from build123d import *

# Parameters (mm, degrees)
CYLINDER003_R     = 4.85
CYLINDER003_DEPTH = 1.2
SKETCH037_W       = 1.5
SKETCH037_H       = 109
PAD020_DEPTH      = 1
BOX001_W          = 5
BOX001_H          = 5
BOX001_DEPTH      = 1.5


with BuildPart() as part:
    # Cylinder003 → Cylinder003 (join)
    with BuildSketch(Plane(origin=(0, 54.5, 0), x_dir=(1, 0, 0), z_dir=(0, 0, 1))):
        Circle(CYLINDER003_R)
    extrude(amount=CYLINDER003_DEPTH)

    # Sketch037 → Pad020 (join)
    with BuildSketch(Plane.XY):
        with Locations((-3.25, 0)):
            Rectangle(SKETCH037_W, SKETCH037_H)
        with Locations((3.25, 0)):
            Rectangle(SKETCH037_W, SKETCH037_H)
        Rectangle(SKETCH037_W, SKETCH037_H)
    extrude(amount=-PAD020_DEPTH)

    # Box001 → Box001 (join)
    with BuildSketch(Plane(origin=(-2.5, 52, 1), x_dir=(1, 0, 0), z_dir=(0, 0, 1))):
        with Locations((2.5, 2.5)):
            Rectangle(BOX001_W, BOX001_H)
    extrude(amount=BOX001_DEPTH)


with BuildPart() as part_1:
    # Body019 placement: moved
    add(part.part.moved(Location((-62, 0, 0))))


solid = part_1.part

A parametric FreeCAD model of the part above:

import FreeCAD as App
import Part
import Sketcher
from FreeCAD import Vector

doc = App.newDocument("Part")
params = doc.addObject("Spreadsheet::Sheet", "Params")
for row, (alias, value) in enumerate([
    ("sketch1_diameter", "9.7 mm"),
    ("pad1_length", "1.2 mm"),
    ("sketch2_height", "109 mm"),
    ("sketch2_width", "1.5 mm"),
    ("pad2_length", "1 mm"),
    ("sketch3_width", "5 mm"),
    ("pad3_length", "1.5 mm"),
], start=1):
    params.set(f"A{row}", alias)
    params.set(f"B{row}", "=" + value)
    params.setAlias(f"B{row}", alias)

body = doc.addObject("PartDesign::Body", "Body")

# Sketch on XY plane
sketch1 = doc.addObject("Sketcher::SketchObject", "Sketch")
body.addObject(sketch1)
sketch1.AttachmentSupport = (doc.XY_Plane, [""])
sketch1.MapMode = "FlatFace"
sketch1.addGeometry(Part.Circle(Vector(0, 54.5, 0), Vector(0, 0, 1), 4.85), False)
sketch1.addConstraint([
    Sketcher.Constraint("PointOnObject", 0, 3, -2),
    Sketcher.Constraint("Diameter", 0, 9.7),
    Sketcher.Constraint("DistanceY", -1, 1, 0, 3, 54.5),
])
sketch1.setExpression("Constraints[1]", "Params.sketch1_diameter")
pad1 = doc.addObject("PartDesign::Pad", "Pad")
body.addObject(pad1)
pad1.Profile = sketch1
pad1.setExpression("Length", "Params.pad1_length")

# Sketch on XY plane
sketch2 = doc.addObject("Sketcher::SketchObject", "Sketch001")
body.addObject(sketch2)
sketch2.AttachmentSupport = (doc.XY_Plane, [""])
sketch2.MapMode = "FlatFace"
sketch2.addGeometry([
    Part.LineSegment(Vector(-4, 54.5, 0), Vector(-4, -54.5, 0)),  # 0
    Part.LineSegment(Vector(-4, -54.5, 0), Vector(-2.5, -54.5, 0)),  # 1
    Part.LineSegment(Vector(-2.5, -54.5, 0), Vector(-2.5, 54.5, 0)),  # 2
    Part.LineSegment(Vector(-2.5, 54.5, 0), Vector(-4, 54.5, 0)),  # 3
    Part.LineSegment(Vector(2.5, 54.5, 0), Vector(2.5, -54.5, 0)),  # 4
    Part.LineSegment(Vector(2.5, -54.5, 0), Vector(4, -54.5, 0)),  # 5
    Part.LineSegment(Vector(4, -54.5, 0), Vector(4, 54.5, 0)),  # 6
    Part.LineSegment(Vector(4, 54.5, 0), Vector(2.5, 54.5, 0)),  # 7
    Part.LineSegment(Vector(-0.75, 54.5, 0), Vector(-0.75, -54.5, 0)),  # 8
    Part.LineSegment(Vector(-0.75, -54.5, 0), Vector(0.75, -54.5, 0)),  # 9
    Part.LineSegment(Vector(0.75, -54.5, 0), Vector(0.75, 54.5, 0)),  # 10
    Part.LineSegment(Vector(0.75, 54.5, 0), Vector(-0.75, 54.5, 0)),  # 11
], False)
sketch2.addConstraint([
    Sketcher.Constraint("Coincident", 0, 2, 1, 1),
    Sketcher.Constraint("Coincident", 1, 2, 2, 1),
    Sketcher.Constraint("Coincident", 2, 2, 3, 1),
    Sketcher.Constraint("Coincident", 3, 2, 0, 1),
    Sketcher.Constraint("Coincident", 4, 2, 5, 1),
    Sketcher.Constraint("Coincident", 5, 2, 6, 1),
    Sketcher.Constraint("Coincident", 6, 2, 7, 1),
    Sketcher.Constraint("Coincident", 7, 2, 4, 1),
    Sketcher.Constraint("Coincident", 8, 2, 9, 1),
    Sketcher.Constraint("Coincident", 9, 2, 10, 1),
    Sketcher.Constraint("Coincident", 10, 2, 11, 1),
    Sketcher.Constraint("Coincident", 11, 2, 8, 1),
    Sketcher.Constraint("Vertical", 0),
    Sketcher.Constraint("Horizontal", 1),
    Sketcher.Constraint("Vertical", 2),
    Sketcher.Constraint("Horizontal", 3),
    Sketcher.Constraint("Vertical", 4),
    Sketcher.Constraint("Horizontal", 5),
    Sketcher.Constraint("Vertical", 6),
    Sketcher.Constraint("Horizontal", 7),
    Sketcher.Constraint("Vertical", 8),
    Sketcher.Constraint("Horizontal", 9),
    Sketcher.Constraint("Vertical", 10),
    Sketcher.Constraint("Horizontal", 11),
    Sketcher.Constraint("Symmetric", 2, 2, 4, 2, -1, 1),
    Sketcher.Constraint("Symmetric", 0, 2, 6, 2, -1, 1),
    Sketcher.Constraint("Symmetric", 8, 2, 10, 2, -1, 1),
    Sketcher.Constraint("Horizontal", 1, 2, 4, 2),
    Sketcher.Constraint("Horizontal", 5, 2, 8, 2),
    Sketcher.Constraint("Equal", 7, 9),
    Sketcher.Constraint("DistanceY", 0, 2, 0, 1, 109.0),
    Sketcher.Constraint("DistanceX", 1, 1, 1, 2, 1.5),
    Sketcher.Constraint("DistanceX", 0, 2, -1, 1, 4.0),
])
sketch2.setExpression("Constraints[30]", "Params.sketch2_height")
sketch2.setExpression("Constraints[31]", "Params.sketch2_width")
pad2 = doc.addObject("PartDesign::Pad", "Pad001")
body.addObject(pad2)
pad2.Profile = sketch2
pad2.setExpression("Length", "Params.pad2_length")
pad2.Reversed = True

# Sketch on XY plane
sketch3 = doc.addObject("Sketcher::SketchObject", "Sketch002")
body.addObject(sketch3)
sketch3.AttachmentSupport = (doc.XY_Plane, [""])
sketch3.MapMode = "FlatFace"
sketch3.AttachmentOffset = App.Placement(Vector(0, 0, 1), App.Rotation())
sketch3.addGeometry([
    Part.LineSegment(Vector(-2.5, 57, 0), Vector(-2.5, 52, 0)),
    Part.LineSegment(Vector(-2.5, 52, 0), Vector(2.5, 52, 0)),
    Part.LineSegment(Vector(2.5, 52, 0), Vector(2.5, 57, 0)),
    Part.LineSegment(Vector(2.5, 57, 0), Vector(-2.5, 57, 0)),
], False)
sketch3.addConstraint([
    Sketcher.Constraint("Coincident", 0, 2, 1, 1),
    Sketcher.Constraint("Coincident", 1, 2, 2, 1),
    Sketcher.Constraint("Coincident", 2, 2, 3, 1),
    Sketcher.Constraint("Coincident", 3, 2, 0, 1),
    Sketcher.Constraint("Vertical", 0),
    Sketcher.Constraint("Horizontal", 1),
    Sketcher.Constraint("Vertical", 2),
    Sketcher.Constraint("Horizontal", 3),
    Sketcher.Constraint("Equal", 3, 0),
    Sketcher.Constraint("DistanceX", 1, 1, 1, 2, 5.0),
    Sketcher.Constraint("DistanceY", -1, 1, 0, 2, 52.0),
    Sketcher.Constraint("DistanceX", 0, 2, -1, 1, 2.5),
])
sketch3.setExpression("Constraints[9]", "Params.sketch3_width")
pad3 = doc.addObject("PartDesign::Pad", "Pad002")
body.addObject(pad3)
pad3.Profile = sketch3
pad3.setExpression("Length", "Params.pad3_length")
body2 = doc.addObject("PartDesign::Body", "Body001")
doc.recompute()

body.Placement = App.Placement(Vector(-62, 0, 0), App.Rotation(Vector(0, 0, 1), 0))
boolean = doc.addObject("PartDesign::Boolean", "Boolean")
body2.addObject(boolean)
boolean.Type = "Fuse"
boolean.addObjects([body])

doc.recompute()
